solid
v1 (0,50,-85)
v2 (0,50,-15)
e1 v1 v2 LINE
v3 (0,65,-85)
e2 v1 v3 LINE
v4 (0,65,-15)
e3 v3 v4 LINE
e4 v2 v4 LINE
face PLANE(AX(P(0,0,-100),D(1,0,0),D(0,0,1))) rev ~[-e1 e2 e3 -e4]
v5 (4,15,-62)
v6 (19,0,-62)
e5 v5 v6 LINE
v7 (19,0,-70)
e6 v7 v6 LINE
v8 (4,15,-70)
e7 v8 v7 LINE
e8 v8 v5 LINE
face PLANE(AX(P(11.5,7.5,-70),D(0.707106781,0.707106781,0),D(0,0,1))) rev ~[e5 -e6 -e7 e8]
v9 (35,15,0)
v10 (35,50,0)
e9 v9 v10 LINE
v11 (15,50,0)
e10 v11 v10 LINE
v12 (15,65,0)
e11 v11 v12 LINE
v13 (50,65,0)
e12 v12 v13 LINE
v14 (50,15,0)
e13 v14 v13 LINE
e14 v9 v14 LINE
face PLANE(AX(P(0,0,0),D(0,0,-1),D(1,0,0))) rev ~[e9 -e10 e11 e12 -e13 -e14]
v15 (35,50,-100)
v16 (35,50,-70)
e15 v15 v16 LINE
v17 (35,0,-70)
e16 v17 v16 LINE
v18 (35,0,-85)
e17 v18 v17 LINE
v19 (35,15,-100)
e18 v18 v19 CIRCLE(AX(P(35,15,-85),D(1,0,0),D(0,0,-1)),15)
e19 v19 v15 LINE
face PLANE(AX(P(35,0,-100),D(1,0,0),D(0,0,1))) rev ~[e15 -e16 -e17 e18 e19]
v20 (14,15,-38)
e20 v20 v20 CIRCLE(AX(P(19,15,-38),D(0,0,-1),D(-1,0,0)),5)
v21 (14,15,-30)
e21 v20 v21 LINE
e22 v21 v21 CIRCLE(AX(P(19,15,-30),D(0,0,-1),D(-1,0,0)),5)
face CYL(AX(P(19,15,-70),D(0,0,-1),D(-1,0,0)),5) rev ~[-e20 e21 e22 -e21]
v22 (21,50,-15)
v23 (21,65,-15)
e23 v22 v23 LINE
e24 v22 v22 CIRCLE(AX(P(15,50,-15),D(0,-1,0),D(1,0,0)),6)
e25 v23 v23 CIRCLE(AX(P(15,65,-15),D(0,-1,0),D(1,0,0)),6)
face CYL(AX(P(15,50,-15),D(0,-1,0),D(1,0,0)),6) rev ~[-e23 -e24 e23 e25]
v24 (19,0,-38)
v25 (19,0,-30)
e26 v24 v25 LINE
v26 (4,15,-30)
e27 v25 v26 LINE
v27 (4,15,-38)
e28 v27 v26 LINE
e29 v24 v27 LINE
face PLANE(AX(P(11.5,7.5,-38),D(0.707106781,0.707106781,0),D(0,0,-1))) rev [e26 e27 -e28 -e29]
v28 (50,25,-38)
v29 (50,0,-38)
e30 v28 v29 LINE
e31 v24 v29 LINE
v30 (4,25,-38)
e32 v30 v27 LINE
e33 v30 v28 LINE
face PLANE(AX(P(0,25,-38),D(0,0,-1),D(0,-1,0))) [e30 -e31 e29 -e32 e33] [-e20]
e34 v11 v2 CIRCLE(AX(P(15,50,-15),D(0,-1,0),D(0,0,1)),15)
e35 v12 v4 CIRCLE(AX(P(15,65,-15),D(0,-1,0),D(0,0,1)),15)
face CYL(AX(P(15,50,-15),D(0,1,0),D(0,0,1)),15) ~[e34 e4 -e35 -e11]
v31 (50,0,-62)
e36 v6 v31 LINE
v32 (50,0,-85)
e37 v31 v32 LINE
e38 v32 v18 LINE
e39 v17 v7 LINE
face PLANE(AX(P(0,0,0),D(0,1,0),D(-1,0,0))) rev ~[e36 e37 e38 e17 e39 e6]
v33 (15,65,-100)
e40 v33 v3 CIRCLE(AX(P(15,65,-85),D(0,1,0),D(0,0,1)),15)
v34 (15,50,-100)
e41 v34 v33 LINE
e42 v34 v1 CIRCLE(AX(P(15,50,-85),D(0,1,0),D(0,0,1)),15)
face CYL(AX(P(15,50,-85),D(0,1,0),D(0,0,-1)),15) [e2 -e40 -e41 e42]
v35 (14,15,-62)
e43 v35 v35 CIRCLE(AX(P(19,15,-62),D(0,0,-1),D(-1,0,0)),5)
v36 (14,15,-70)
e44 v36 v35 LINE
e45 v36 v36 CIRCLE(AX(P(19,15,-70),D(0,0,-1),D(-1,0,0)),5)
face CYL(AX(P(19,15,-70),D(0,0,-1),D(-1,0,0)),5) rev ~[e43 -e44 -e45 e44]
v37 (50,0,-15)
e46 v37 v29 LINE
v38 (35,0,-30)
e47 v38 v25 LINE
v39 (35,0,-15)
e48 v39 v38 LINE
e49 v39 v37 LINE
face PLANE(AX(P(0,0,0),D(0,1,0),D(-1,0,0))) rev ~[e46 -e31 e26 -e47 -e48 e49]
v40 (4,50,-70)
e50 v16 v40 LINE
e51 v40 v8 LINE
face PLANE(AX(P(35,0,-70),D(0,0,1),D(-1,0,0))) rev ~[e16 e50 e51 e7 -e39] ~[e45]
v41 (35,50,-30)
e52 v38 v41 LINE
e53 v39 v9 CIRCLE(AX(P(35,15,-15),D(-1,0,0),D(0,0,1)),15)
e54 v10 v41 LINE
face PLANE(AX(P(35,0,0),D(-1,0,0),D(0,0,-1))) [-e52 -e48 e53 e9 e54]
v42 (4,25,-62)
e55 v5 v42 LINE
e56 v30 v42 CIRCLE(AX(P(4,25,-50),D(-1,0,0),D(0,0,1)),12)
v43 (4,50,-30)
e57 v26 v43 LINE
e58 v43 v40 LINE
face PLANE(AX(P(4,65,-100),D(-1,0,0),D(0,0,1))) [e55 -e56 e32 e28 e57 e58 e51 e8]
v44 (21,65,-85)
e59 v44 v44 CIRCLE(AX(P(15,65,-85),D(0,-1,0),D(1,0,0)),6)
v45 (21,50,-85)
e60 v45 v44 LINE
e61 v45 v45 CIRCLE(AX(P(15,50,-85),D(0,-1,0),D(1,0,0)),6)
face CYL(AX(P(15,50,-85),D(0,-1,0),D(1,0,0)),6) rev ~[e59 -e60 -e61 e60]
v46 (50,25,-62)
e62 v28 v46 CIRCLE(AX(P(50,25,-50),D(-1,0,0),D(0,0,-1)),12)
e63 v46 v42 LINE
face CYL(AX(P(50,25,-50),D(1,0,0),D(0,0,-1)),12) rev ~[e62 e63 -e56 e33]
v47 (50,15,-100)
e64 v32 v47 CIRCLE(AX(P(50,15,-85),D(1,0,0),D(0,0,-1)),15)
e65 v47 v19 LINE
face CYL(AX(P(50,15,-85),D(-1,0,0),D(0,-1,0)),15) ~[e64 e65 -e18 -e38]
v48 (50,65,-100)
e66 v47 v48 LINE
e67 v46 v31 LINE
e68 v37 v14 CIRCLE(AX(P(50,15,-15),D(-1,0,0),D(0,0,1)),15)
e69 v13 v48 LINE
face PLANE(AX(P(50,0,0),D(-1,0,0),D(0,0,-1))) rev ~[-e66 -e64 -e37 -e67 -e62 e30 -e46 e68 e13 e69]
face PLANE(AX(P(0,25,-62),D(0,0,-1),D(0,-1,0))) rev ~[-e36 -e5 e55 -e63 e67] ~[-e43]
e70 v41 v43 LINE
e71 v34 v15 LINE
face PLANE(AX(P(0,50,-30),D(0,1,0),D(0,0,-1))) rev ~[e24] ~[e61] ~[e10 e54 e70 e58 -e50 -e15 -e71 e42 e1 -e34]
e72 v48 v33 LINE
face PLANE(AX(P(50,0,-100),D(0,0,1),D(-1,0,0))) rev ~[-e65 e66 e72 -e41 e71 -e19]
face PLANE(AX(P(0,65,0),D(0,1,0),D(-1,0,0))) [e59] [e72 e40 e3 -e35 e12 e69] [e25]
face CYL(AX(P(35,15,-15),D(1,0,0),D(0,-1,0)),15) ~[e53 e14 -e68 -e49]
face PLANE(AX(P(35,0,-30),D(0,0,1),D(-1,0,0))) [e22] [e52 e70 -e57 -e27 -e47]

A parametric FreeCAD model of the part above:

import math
import FreeCAD as App
import Part
import Sketcher
from FreeCAD import Vector


def edges_at(feature, points):
    """Names of the edges that pass closest to the given points."""
    edges = feature.Shape.Edges
    near = lambda p: min(range(len(edges)), key=lambda i: edges[i].distToShape(Part.Vertex(*p))[0])
    return sorted({f"Edge{near(p) + 1}" for p in points})

doc = App.newDocument("Part")
body = doc.addObject("PartDesign::Body", "Body")

# Sketch on XZ plane
sketch1 = body.newObject("Sketcher::SketchObject", "Sketch")
sketch1.AttachmentSupport = (doc.getObject("XZ_Plane"), [""])
sketch1.MapMode = "FlatFace"
sketch1.addGeometry(Part.LineSegment(Vector(0, -100, 0), Vector(0, 0, 0)), False)
sketch1.addGeometry(Part.LineSegment(Vector(0, 0, 0), Vector(50, 0, 0)), False)
sketch1.addGeometry(Part.LineSegment(Vector(50, 0, 0), Vector(50, -100, 0)), False)
sketch1.addGeometry(Part.LineSegment(Vector(50, -100, 0), Vector(0, -100, 0)), False)
sketch1.addConstraint(Sketcher.Constraint("Coincident", 0, 2, 1, 1))
sketch1.addConstraint(Sketcher.Constraint("Coincident", 1, 2, 2, 1))
sketch1.addConstraint(Sketcher.Constraint("Coincident", 2, 2, 3, 1))
sketch1.addConstraint(Sketcher.Constraint("Coincident", 3, 2, 0, 1))
sketch1.addConstraint(Sketcher.Constraint("Vertical", 0))
sketch1.addConstraint(Sketcher.Constraint("Horizontal", 1))
sketch1.addConstraint(Sketcher.Constraint("Vertical", 2))
sketch1.addConstraint(Sketcher.Constraint("Horizontal", 3))
sketch1.addConstraint(Sketcher.Constraint("Coincident", 0, 2, -1, 1))
sketch1.addConstraint(Sketcher.Constraint("DistanceX", 1, 1, 1, 2, 50.0))
sketch1.addConstraint(Sketcher.Constraint("DistanceY", 0, 1, 0, 2, 100.0))
pad1 = body.newObject("PartDesign::Pad", "Pad")
pad1.Profile = sketch1
pad1.Length = 65
pad1.Reversed = True

# Sketch on YZ plane
sketch2 = body.newObject("Sketcher::SketchObject", "Sketch001")
sketch2.AttachmentSupport = (doc.getObject("YZ_Plane"), [""])
sketch2.MapMode = "FlatFace"
sketch2.AttachmentOffset = App.Placement(Vector(0, 0, 50), App.Rotation())
sketch2.addGeometry(Part.Circle(Vector(25, -50, 0), Vector(0, 0, 1), 12), False)
sketch2.addConstraint(Sketcher.Constraint("Diameter", 0, 24.0))
sketch2.addConstraint(Sketcher.Constraint("DistanceX", -1, 1, 0, 3, 25.0))
sketch2.addConstraint(Sketcher.Constraint("DistanceY", 0, 3, -1, 1, 50.0))
pocket1 = body.newObject("PartDesign::Pocket", "Pocket")
pocket1.Profile = sketch2
pocket1.Length = 65

# Sketch on YZ plane
sketch3 = body.newObject("Sketcher::SketchObject", "Sketch002")
sketch3.AttachmentSupport = (doc.getObject("YZ_Plane"), [""])
sketch3.MapMode = "FlatFace"
sketch3.addGeometry(Part.LineSegment(Vector(0, -38, 0), Vector(25, -38, 0)), False)
sketch3.addGeometry(Part.ArcOfCircle(Part.Circle(Vector(25, -50, 0), Vector(0, 0, 1), 12), math.radians(90), math.radians(270)), False)
sketch3.addGeometry(Part.LineSegment(Vector(25, -62, 0), Vector(0, -62, 0)), False)
sketch3.addGeometry(Part.LineSegment(Vector(0, -62, 0), Vector(0, -38, 0)), False)
sketch3.addConstraint(Sketcher.Constraint("Tangent", 0, 2, 1, 1))
sketch3.addConstraint(Sketcher.Constraint("Tangent", 1, 2, 2, 1))
sketch3.addConstraint(Sketcher.Constraint("Coincident", 2, 2, 3, 1))
sketch3.addConstraint(Sketcher.Constraint("Coincident", 3, 2, 0, 1))
sketch3.addConstraint(Sketcher.Constraint("Horizontal", 0))
sketch3.addConstraint(Sketcher.Constraint("Horizontal", 2))
sketch3.addConstraint(Sketcher.Constraint("Vertical", 3))
sketch3.addConstraint(Sketcher.Constraint("PointOnObject", 2, 2, -2))
sketch3.addConstraint(Sketcher.Constraint("Radius", 1, 12.0))
sketch3.addConstraint(Sketcher.Constraint("DistanceX", 0, 1, 0, 2, 25.0))
sketch3.addConstraint(Sketcher.Constraint("DistanceY", 1, 3, -1, 1, 50.0))
pocket2 = body.newObject("PartDesign::Pocket", "Pocket001")
pocket2.Profile = sketch3
pocket2.Length = 65
pocket2.Reversed = True

# Sketch on XZ plane
sketch4 = body.newObject("Sketcher::SketchObject", "Sketch003")
sketch4.AttachmentSupport = (doc.getObject("XZ_Plane"), [""])
sketch4.MapMode = "FlatFace"
sketch4.addGeometry(Part.LineSegment(Vector(0, 0, 0), Vector(0, -30, 0)), False)
sketch4.addGeometry(Part.LineSegment(Vector(0, -30, 0), Vector(35, -30, 0)), False)
sketch4.addGeometry(Part.LineSegment(Vector(35, -30, 0), Vector(35, 0, 0)), False)
sketch4.addGeometry(Part.LineSegment(Vector(35, 0, 0), Vector(0, 0, 0)), False)
sketch4.addGeometry(Part.LineSegment(Vector(0, -70, 0), Vector(0, -100, 0)), False)
sketch4.addGeometry(Part.LineSegment(Vector(0, -100, 0), Vector(35, -100, 0)), False)
sketch4.addGeometry(Part.LineSegment(Vector(35, -100, 0), Vector(35, -70, 0)), False)
sketch4.addGeometry(Part.LineSegment(Vector(35, -70, 0), Vector(0, -70, 0)), False)
sketch4.addConstraint(Sketcher.Constraint("Coincident", 0, 2, 1, 1))
sketch4.addConstraint(Sketcher.Constraint("Coincident", 1, 2, 2, 1))
sketch4.addConstraint(Sketcher.Constraint("Coincident", 2, 2, 3, 1))
sketch4.addConstraint(Sketcher.Constraint("Coincident", 3, 2, 0, 1))
sketch4.addConstraint(Sketcher.Constraint("Coincident", 4, 2, 5, 1))
sketch4.addConstraint(Sketcher.Constraint("Coincident", 5, 2, 6, 1))
sketch4.addConstraint(Sketcher.Constraint("Coincident", 6, 2, 7, 1))
sketch4.addConstraint(Sketcher.Constraint("Coincident", 7, 2, 4, 1))
sketch4.addConstraint(Sketcher.Constraint("Vertical", 0))
sketch4.addConstraint(Sketcher.Constraint("Horizontal", 1))
sketch4.addConstraint(Sketcher.Constraint("Vertical", 2))
sketch4.addConstraint(Sketcher.Constraint("Horizontal", 3))
sketch4.addConstraint(Sketcher.Constraint("Vertical", 4))
sketch4.addConstraint(Sketcher.Constraint("Horizontal", 5))
sketch4.addConstraint(Sketcher.Constraint("Vertical", 6))
sketch4.addConstraint(Sketcher.Constraint("Horizontal", 7))
sketch4.addConstraint(Sketcher.Constraint("Coincident", 3, 2, -1, 1))
sketch4.addConstraint(Sketcher.Constraint("PointOnObject", 4, 2, -2))
sketch4.addConstraint(Sketcher.Constraint("Vertical", 2, 2, 5, 2))
sketch4.addConstraint(Sketcher.Constraint("Equal", 2, 4))
sketch4.addConstraint(Sketcher.Constraint("DistanceX", 1, 1, 1, 2, 35.0))
sketch4.addConstraint(Sketcher.Constraint("DistanceY", 0, 2, 0, 1, 30.0))
sketch4.addConstraint(Sketcher.Constraint("DistanceY", 4, 2, -1, 1, 100.0))
pocket3 = body.newObject("PartDesign::Pocket", "Pocket002")
pocket3.Profile = sketch4
pocket3.Length = 50

# Sketch on YZ plane
sketch5 = body.newObject("Sketcher::SketchObject", "Sketch004")
sketch5.AttachmentSupport = (doc.getObject("YZ_Plane"), [""])
sketch5.MapMode = "FlatFace"
sketch5.addGeometry(Part.LineSegment(Vector(50, -30, 0), Vector(50, -70, 0)), False)
sketch5.addGeometry(Part.LineSegment(Vector(50, -70, 0), Vector(0, -70, 0)), False)
sketch5.addGeometry(Part.LineSegment(Vector(0, -70, 0), Vector(0, -62, 0)), False)
sketch5.addGeometry(Part.LineSegment(Vector(0, -62, 0), Vector(25, -62, 0)), False)
sketch5.addGeometry(Part.ArcOfCircle(Part.Circle(Vector(25, -50, 0), Vector(0, 0, 1), 12), math.radians(-90), math.radians(90)), False)
sketch5.addGeometry(Part.LineSegment(Vector(25, -38, 0), Vector(0, -38, 0)), False)
sketch5.addGeometry(Part.LineSegment(Vector(0, -38, 0), Vector(0, -30, 0)), False)
sketch5.addGeometry(Part.LineSegment(Vector(0, -30, 0), Vector(50, -30, 0)), False)
sketch5.addConstraint(Sketcher.Constraint("Coincident", 0, 2, 1, 1))
sketch5.addConstraint(Sketcher.Constraint("Coincident", 1, 2, 2, 1))
sketch5.addConstraint(Sketcher.Constraint("Coincident", 2, 2, 3, 1))
sketch5.addConstraint(Sketcher.Constraint("Tangent", 3, 2, 4, 1))
sketch5.addConstraint(Sketcher.Constraint("Tangent", 4, 2, 5, 1))
sketch5.addConstraint(Sketcher.Constraint("Coincident", 5, 2, 6, 1))
sketch5.addConstraint(Sketcher.Constraint("Coincident", 6, 2, 7, 1))
sketch5.addConstraint(Sketcher.Constraint("Coincident", 7, 2, 0, 1))
sketch5.addConstraint(Sketcher.Constraint("Vertical", 0))
sketch5.addConstraint(Sketcher.Constraint("Horizontal", 1))
sketch5.addConstraint(Sketcher.Constraint("Vertical", 2))
sketch5.addConstraint(Sketcher.Constraint("Horizontal", 3))
sketch5.addConstraint(Sketcher.Constraint("Horizontal", 5))
sketch5.addConstraint(Sketcher.Constraint("Vertical", 6))
sketch5.addConstraint(Sketcher.Constraint("Horizontal", 7))
sketch5.addConstraint(Sketcher.Constraint("PointOnObject", 1, 2, -2))
sketch5.addConstraint(Sketcher.Constraint("PointOnObject", 5, 2, -2))
sketch5.addConstraint(Sketcher.Constraint("Equal", 2, 6))
sketch5.addConstraint(Sketcher.Constraint("Radius", 4, 12.0))
sketch5.addConstraint(Sketcher.Constraint("DistanceX", 1, 2, 1, 1, 50.0))
sketch5.addConstraint(Sketcher.Constraint("DistanceX", 3, 1, 3, 2, 25.0))
sketch5.addConstraint(Sketcher.Constraint("DistanceY", 0, 2, 0, 1, 40.0))
sketch5.addConstraint(Sketcher.Constraint("DistanceY", 4, 3, -1, 1, 50.0))
pocket4 = body.newObject("PartDesign::Pocket", "Pocket003")
pocket4.Profile = sketch5
pocket4.Length = 4
pocket4.Reversed = True

# Sketch on XY plane
sketch6 = body.newObject("Sketcher::SketchObject", "Sketch005")
sketch6.AttachmentSupport = (doc.getObject("XY_Plane"), [""])
sketch6.MapMode = "FlatFace"
sketch6.AttachmentOffset = App.Placement(Vector(0, 0, -70), App.Rotation())
sketch6.addGeometry(Part.Circle(Vector(19, 15, 0), Vector(0, 0, 1), 5), False)
sketch6.addConstraint(Sketcher.Constraint("Diameter", 0, 10.0))
sketch6.addConstraint(Sketcher.Constraint("DistanceY", -1, 1, 0, 3, 15.0))
sketch6.addConstraint(Sketcher.Constraint("DistanceX", -1, 1, 0, 3, 19.0))
pocket5 = body.newObject("PartDesign::Pocket", "Pocket004")
pocket5.Profile = sketch6
pocket5.Type = "ThroughAll"
pocket5.Reversed = True
doc.recompute()

chamfer = body.newObject("PartDesign::Chamfer", "Chamfer")
chamfer.Base = (pocket5, edges_at(pocket5, [(4, 0, -34), (4, 0, -66)]))
chamfer.Size = 15
doc.recompute()

fillet = body.newObject("PartDesign::Fillet", "Fillet")
fillet.Base = (chamfer, edges_at(chamfer, [
    (42.5, 0, 0),
    (42.5, 0, -100),
    (0, 57.5, -100),
    (0, 57.5, 0),
]))
fillet.Radius = 15

# Sketch on XZ plane
sketch7 = body.newObject("Sketcher::SketchObject", "Sketch006")
sketch7.AttachmentSupport = (doc.getObject("XZ_Plane"), [""])
sketch7.MapMode = "FlatFace"
sketch7.AttachmentOffset = App.Placement(Vector(0, 0, -50), App.Rotation())
sketch7.addGeometry(Part.Circle(Vector(15, -85, 0), Vector(0, 0, 1), 6), False)
sketch7.addGeometry(Part.Circle(Vector(15, -15, 0), Vector(0, 0, 1), 6), False)
sketch7.addConstraint(Sketcher.Constraint("Equal", 0, 1))
sketch7.addConstraint(Sketcher.Constraint("Vertical", 0, 3, 1, 3))
sketch7.addConstraint(Sketcher.Constraint("Diameter", 0, 12.0))
sketch7.addConstraint(Sketcher.Constraint("DistanceX", -1, 1, 0, 3, 15.0))
sketch7.addConstraint(Sketcher.Constraint("DistanceY", 1, 3, -1, 1, 15.0))
sketch7.addConstraint(Sketcher.Constraint("DistanceY", 0, 3, -1, 1, 85.0))
pocket6 = body.newObject("PartDesign::Pocket", "Pocket005")
pocket6.Profile = sketch7
pocket6.Type = "ThroughAll"

doc.recompute()
